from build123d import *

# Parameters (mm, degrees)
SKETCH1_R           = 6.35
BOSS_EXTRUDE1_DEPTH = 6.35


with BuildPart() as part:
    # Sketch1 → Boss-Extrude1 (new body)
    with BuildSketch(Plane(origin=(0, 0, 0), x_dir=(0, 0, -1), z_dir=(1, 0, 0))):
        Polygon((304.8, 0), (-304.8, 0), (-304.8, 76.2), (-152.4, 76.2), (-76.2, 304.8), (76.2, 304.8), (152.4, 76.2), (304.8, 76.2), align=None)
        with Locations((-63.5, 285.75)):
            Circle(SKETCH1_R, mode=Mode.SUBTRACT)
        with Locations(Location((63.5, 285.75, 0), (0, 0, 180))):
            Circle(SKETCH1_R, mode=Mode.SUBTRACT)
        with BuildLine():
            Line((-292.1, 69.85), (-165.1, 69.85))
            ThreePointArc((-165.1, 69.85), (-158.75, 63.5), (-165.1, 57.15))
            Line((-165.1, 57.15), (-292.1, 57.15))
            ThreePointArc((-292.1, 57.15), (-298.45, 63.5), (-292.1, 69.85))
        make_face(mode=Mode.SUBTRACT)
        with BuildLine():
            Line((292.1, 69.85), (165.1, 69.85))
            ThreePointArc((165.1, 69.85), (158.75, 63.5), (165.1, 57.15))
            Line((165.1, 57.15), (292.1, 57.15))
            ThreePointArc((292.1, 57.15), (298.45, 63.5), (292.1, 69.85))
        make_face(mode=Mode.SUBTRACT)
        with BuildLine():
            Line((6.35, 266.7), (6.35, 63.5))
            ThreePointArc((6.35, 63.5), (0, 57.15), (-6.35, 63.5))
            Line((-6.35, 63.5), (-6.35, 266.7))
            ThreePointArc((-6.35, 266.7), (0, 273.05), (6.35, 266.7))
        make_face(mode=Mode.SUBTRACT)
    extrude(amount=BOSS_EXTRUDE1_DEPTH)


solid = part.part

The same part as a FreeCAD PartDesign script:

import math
import FreeCAD as App
import Part
import Sketcher

V = App.Vector
Q = App.Units.Quantity

doc = App.newDocument("Part")
params = doc.addObject("Spreadsheet::Sheet", "Params")
for row, (alias, value) in enumerate([
    ("sketch1_diameter", "0.5 in"),
    ("sketch1_width", "3 in"),
    ("sketch1_width2", "8 in"),
    ("sketch1_height", "24 in"),
    ("sketch1_height2", "6 in"),
    ("pad1_length", "0.25 in"),
], start=1):
    params.set(f"A{row}", alias)
    params.set(f"B{row}", "=" + value)
    params.setAlias(f"B{row}", alias)

body = doc.addObject("PartDesign::Body", "Body")

sketch1 = doc.addObject("Sketcher::SketchObject", "Sketch")
body.addObject(sketch1)
sketch1.AttachmentSupport = (doc.YZ_Plane, [""])
sketch1.MapMode = "FlatFace"
sketch1.addGeometry([
    Part.LineSegment(V(0, 305, 0), V(0, -305, 0)),
    Part.LineSegment(V(0, -305, 0), V(76, -305, 0)),
    Part.LineSegment(V(76, -305, 0), V(76, -152, 0)),
    Part.LineSegment(V(76, -152, 0), V(305, -76, 0)),
    Part.LineSegment(V(305, -76, 0), V(305, 76, 0)),
    Part.LineSegment(V(305, 76, 0), V(76, 152, 0)),
    Part.LineSegment(V(76, 152, 0), V(76, 305, 0)),
    Part.LineSegment(V(76, 305, 0), V(0, 305, 0)),
    Part.ArcOfCircle(Part.Circle(V(64, -292, 0), V(0, 0, 1), 6), math.radians(180), math.radians(360)),
    Part.LineSegment(V(57, -292, 0), V(57, -165, 0)),
    Part.ArcOfCircle(Part.Circle(V(64, -165, 0), V(0, 0, 1), 6), math.radians(0), math.radians(180)),
    Part.LineSegment(V(70, -165, 0), V(70, -292, 0)),
    Part.LineSegment(V(70, 292, 0), V(70, 165, 0)),
    Part.ArcOfCircle(Part.Circle(V(64, 165, 0), V(0, 0, 1), 6), math.radians(180), math.radians(360)),
    Part.LineSegment(V(57, 165, 0), V(57, 292, 0)),
    Part.ArcOfCircle(Part.Circle(V(64, 292, 0), V(0, 0, 1), 6), math.radians(0), math.radians(180)),
    Part.LineSegment(V(267, -6, 0), V(64, -6, 0)),
    Part.ArcOfCircle(Part.Circle(V(64, 0, 0), V(0, 0, 1), 6), math.radians(90), math.radians(270)),
    Part.LineSegment(V(64, 6, 0), V(267, 6, 0)),
    Part.ArcOfCircle(Part.Circle(V(267, 0, 0), V(0, 0, 1), 6), math.radians(-90), math.radians(90)),
    Part.Circle(V(286, -64, 0), V(0, 0, 1), 6),
    Part.Circle(V(286, 64, 0), V(0, 0, 1), 6),
], False)
sketch1.addConstraint([
    Sketcher.Constraint("Coincident", 0, 2, 1, 1),
    Sketcher.Constraint("Coincident", 1, 2, 2, 1),
    Sketcher.Constraint("Coincident", 2, 2, 3, 1),
    Sketcher.Constraint("Coincident", 3, 2, 4, 1),
    Sketcher.Constraint("Coincident", 4, 2, 5, 1),
    Sketcher.Constraint("Coincident", 5, 2, 6, 1),
    Sketcher.Constraint("Coincident", 6, 2, 7, 1),
    Sketcher.Constraint("Coincident", 7, 2, 0, 1),
    Sketcher.Constraint("Tangent", 8, 1, 9, 1),
    Sketcher.Constraint("Tangent", 9, 2, 10, 2),
    Sketcher.Constraint("Tangent", 10, 1, 11, 1),
    Sketcher.Constraint("Tangent", 11, 2, 8, 2),
    Sketcher.Constraint("Tangent", 12, 2, 13, 2),
    Sketcher.Constraint("Tangent", 13, 1, 14, 1),
    Sketcher.Constraint("Tangent", 14, 2, 15, 2),
    Sketcher.Constraint("Tangent", 15, 1, 12, 1),
    Sketcher.Constraint("Tangent", 16, 2, 17, 2),
    Sketcher.Constraint("Tangent", 17, 1, 18, 1),
    Sketcher.Constraint("Tangent", 18, 2, 19, 2),
    Sketcher.Constraint("Tangent", 19, 1, 16, 1),
    Sketcher.Constraint("Vertical", 0),
    Sketcher.Constraint("Horizontal", 1),
    Sketcher.Constraint("Vertical", 2),
    Sketcher.Constraint("Vertical", 4),
    Sketcher.Constraint("Vertical", 6),
    Sketcher.Constraint("Horizontal", 7),
    Sketcher.Constraint("Vertical", 9),
    Sketcher.Constraint("Vertical", 11),
    Sketcher.Constraint("Vertical", 12),
    Sketcher.Constraint("Vertical", 14),
    Sketcher.Constraint("Horizontal", 16),
    Sketcher.Constraint("Horizontal", 18),
    Sketcher.Constraint("Equal", 10, 13),
    Sketcher.Constraint("Equal", 15, 17),
    Sketcher.Constraint("Equal", 19, 20),
    Sketcher.Constraint("Equal", 20, 21),
    Sketcher.Constraint("Symmetric", 0, 2, 7, 2, -1, 1),
    Sketcher.Constraint("Symmetric", 10, 3, 13, 3, -1),
    Sketcher.Constraint("Symmetric", 20, 3, 21, 3, -1),
    Sketcher.Constraint("Symmetric", 2, 2, 5, 2, -1),
    Sketcher.Constraint("PointOnObject", 17, 3, -1),
    Sketcher.Constraint("Vertical", 15, 3, 17, 3),
    Sketcher.Constraint("Equal", 2, 4),
    Sketcher.Constraint("Equal", 11, 12),
    Sketcher.Constraint("Equal", 3, 5),
    Sketcher.Constraint("Diameter", 20, Q("0.5 in")),
    Sketcher.Constraint("DistanceX", 1, 1, 1, 2, Q("3 in")),
    Sketcher.Constraint("DistanceX", 16, 2, 16, 1, Q("8 in")),
    Sketcher.Constraint("DistanceY", 0, 2, 0, 1, Q("24 in")),
    Sketcher.Constraint("DistanceY", 2, 1, 2, 2, Q("6 in")),
    Sketcher.Constraint("DistanceY", 9, 1, 9, 2, Q("5 in")),
    Sketcher.Constraint("DistanceX", -1, 1, 3, 2, Q("12 in")),
    Sketcher.Constraint("DistanceY", 10, 3, 13, 3, Q("13 in")),
    Sketcher.Constraint("DistanceY", 10, 3, 20, 3, Q("4 in")),
    Sketcher.Constraint("DistanceX", -1, 1, 8, 3, Q("2.5 in")),
    Sketcher.Constraint("DistanceX", -1, 1, 20, 3, Q("11.25 in")),
])
sketch1.setExpression("Constraints[45]", "Params.sketch1_diameter")
sketch1.setExpression("Constraints[46]", "Params.sketch1_width")
sketch1.setExpression("Constraints[47]", "Params.sketch1_width2")
sketch1.setExpression("Constraints[48]", "Params.sketch1_height")
sketch1.setExpression("Constraints[49]", "Params.sketch1_height2")
pad1 = doc.addObject("PartDesign::Pad", "Pad")
body.addObject(pad1)
pad1.Profile = sketch1
pad1.setExpression("Length", "Params.pad1_length")

doc.recompute()
